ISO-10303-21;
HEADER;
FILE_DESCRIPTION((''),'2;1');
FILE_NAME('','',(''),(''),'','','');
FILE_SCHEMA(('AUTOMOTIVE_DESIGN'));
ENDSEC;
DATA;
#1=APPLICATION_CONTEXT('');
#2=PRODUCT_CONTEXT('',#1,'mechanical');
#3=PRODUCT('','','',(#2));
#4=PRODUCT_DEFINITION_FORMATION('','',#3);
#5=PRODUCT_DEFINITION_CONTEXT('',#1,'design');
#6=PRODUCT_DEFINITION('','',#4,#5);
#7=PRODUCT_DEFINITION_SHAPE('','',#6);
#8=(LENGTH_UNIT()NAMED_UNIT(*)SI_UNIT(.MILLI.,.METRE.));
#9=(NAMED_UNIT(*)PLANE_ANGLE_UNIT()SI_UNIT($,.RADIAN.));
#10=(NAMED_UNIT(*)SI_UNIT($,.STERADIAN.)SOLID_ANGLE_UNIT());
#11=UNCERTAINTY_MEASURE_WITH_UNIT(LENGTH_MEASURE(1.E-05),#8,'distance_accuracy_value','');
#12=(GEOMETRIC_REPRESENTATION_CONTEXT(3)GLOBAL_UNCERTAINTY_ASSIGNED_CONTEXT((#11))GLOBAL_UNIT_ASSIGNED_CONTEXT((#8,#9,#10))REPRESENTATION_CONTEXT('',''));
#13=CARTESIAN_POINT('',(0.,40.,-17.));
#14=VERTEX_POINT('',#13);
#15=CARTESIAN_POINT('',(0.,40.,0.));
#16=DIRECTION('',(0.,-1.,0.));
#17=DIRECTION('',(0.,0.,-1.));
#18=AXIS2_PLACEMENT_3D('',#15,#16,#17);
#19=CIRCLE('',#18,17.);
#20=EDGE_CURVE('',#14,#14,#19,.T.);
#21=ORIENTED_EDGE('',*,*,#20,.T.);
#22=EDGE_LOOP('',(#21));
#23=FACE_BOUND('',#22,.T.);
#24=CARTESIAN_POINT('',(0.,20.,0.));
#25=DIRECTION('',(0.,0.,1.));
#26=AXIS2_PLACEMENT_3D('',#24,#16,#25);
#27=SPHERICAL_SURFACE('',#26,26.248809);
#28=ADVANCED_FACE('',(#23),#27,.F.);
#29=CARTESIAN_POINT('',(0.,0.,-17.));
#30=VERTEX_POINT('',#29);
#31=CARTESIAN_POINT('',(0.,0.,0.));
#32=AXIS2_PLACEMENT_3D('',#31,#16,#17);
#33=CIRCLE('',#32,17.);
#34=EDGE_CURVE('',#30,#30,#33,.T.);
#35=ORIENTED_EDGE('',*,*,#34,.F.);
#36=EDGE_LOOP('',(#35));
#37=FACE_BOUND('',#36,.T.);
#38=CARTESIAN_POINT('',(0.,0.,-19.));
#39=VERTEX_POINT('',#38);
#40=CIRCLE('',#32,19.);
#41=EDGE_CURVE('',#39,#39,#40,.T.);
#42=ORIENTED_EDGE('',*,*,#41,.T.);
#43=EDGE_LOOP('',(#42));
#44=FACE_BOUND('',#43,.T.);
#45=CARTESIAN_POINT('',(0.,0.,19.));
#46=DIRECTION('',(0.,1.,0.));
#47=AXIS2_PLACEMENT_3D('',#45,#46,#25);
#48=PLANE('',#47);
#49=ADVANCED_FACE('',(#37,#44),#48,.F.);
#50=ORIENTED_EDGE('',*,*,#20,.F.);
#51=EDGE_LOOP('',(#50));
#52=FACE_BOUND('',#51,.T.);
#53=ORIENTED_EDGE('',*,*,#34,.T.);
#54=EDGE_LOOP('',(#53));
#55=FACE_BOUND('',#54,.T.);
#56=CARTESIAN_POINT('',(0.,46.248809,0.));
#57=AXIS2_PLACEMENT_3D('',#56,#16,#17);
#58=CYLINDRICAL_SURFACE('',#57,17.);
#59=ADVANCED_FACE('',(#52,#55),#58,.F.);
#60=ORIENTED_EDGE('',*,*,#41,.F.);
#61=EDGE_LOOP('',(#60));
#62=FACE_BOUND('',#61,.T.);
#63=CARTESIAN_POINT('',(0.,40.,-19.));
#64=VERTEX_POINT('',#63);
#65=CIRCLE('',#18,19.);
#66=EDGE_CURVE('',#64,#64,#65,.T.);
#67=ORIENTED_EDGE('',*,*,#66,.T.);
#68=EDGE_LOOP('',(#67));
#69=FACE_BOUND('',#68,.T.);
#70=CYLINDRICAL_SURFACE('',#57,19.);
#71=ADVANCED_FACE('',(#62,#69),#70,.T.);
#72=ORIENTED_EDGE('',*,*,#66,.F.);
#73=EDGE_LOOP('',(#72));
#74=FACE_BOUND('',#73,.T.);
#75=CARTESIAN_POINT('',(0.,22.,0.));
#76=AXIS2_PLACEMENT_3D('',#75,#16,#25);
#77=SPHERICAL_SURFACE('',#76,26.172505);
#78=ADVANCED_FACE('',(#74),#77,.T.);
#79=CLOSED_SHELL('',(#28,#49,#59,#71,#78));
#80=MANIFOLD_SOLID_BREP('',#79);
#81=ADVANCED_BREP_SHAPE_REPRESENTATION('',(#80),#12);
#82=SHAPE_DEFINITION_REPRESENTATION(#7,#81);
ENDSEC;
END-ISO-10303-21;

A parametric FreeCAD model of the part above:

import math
import FreeCAD as App
import Part
import Sketcher
from FreeCAD import Vector

doc = App.newDocument("Part")
body = doc.addObject("PartDesign::Body", "Body")

# Sketch on YZ plane
sketch1 = body.newObject("Sketcher::SketchObject", "Sketch")
sketch1.AttachmentSupport = (doc.getObject("YZ_Plane"), [""])
sketch1.MapMode = "FlatFace"
sketch1.addGeometry([
    Part.LineSegment(Vector(0, 17, 0), Vector(40, 17, 0)),  # 0
    Part.ArcOfCircle(Part.Circle(Vector(20, 0, 0), Vector(0, 0, 1), 26.2), math.radians(0), math.radians(40)),  # 1
    Part.LineSegment(Vector(46.2, 0, 0), Vector(48.2, 0, 0)),  # 2
    Part.ArcOfCircle(Part.Circle(Vector(22, 0, 0), Vector(0, 0, 1), 26.2), math.radians(0), math.radians(47)),  # 3
    Part.LineSegment(Vector(40, 19, 0), Vector(0, 19, 0)),  # 4
    Part.LineSegment(Vector(0, 19, 0), Vector(0, 17, 0)),  # 5
], False)
sketch1.addConstraint([
    Sketcher.Constraint("Coincident", 0, 2, 1, 2),
    Sketcher.Constraint("Coincident", 1, 1, 2, 1),
    Sketcher.Constraint("Coincident", 2, 2, 3, 1),
    Sketcher.Constraint("Coincident", 3, 2, 4, 1),
    Sketcher.Constraint("Coincident", 4, 2, 5, 1),
    Sketcher.Constraint("Coincident", 5, 2, 0, 1),
    Sketcher.Constraint("Horizontal", 0),
    Sketcher.Constraint("Horizontal", 2),
    Sketcher.Constraint("Horizontal", 4),
    Sketcher.Constraint("Vertical", 5),
    Sketcher.Constraint("PointOnObject", 1, 3, -1),
    Sketcher.Constraint("PointOnObject", 3, 3, -1),
    Sketcher.Constraint("PointOnObject", 1, 1, -1),
    Sketcher.Constraint("PointOnObject", 4, 2, -2),
    Sketcher.Constraint("Vertical", 0, 2, 3, 2),
    Sketcher.Constraint("DistanceX", 0, 1, 0, 2, 40.0),
    Sketcher.Constraint("DistanceY", 5, 2, 5, 1, 2.0),
    Sketcher.Constraint("DistanceX", -1, 1, 1, 3, 20.0),
    Sketcher.Constraint("DistanceX", -1, 1, 3, 3, 22.0),
    Sketcher.Constraint("DistanceY", -1, 1, 0, 2, 17.0),
])
revolution = body.newObject("PartDesign::Revolution", "Revolution")
revolution.Profile = sketch1
revolution.ReferenceAxis = (sketch1, ["H_Axis"])
revolution.Angle = 360

doc.recompute()
